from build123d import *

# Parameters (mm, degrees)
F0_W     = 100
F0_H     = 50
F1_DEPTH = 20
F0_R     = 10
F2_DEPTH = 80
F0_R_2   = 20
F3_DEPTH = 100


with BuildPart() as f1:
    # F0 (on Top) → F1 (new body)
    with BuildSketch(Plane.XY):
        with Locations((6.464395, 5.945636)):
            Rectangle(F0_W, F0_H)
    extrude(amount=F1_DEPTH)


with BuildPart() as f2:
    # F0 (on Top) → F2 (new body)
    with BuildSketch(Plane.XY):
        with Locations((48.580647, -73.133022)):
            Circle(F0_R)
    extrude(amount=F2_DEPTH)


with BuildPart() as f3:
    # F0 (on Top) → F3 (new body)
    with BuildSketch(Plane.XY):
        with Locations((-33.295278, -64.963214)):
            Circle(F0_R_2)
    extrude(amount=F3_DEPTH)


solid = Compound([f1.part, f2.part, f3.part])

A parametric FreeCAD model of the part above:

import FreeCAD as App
import Part
import Sketcher


def add_polygon(sketch, points):
    """Adds a closed chain of lines whose ends are joined by coincident constraints."""
    first, n = sketch.GeometryCount, len(points)
    for a, b in zip(points, points[1:] + points[:1]):
        sketch.addGeometry(Part.LineSegment(App.Vector(*a, 0), App.Vector(*b, 0)), False)
    for i in range(n):
        sketch.addConstraint(Sketcher.Constraint("Coincident", first + i, 2, first + (i + 1) % n, 1))

doc = App.newDocument("Part")
body = doc.addObject("PartDesign::Body", "Body")

sketch1 = body.newObject("Sketcher::SketchObject", "Sketch")
sketch1.AttachmentSupport = (doc.getObject("XY_Plane"), [""])
sketch1.MapMode = "FlatFace"
add_polygon(sketch1, [(-44, 31), (-44, -19), (56, -19), (56, 31)])
sketch1.addConstraint([
    Sketcher.Constraint("Vertical", 0),
    Sketcher.Constraint("Horizontal", 1),
    Sketcher.Constraint("Vertical", 2),
    Sketcher.Constraint("Horizontal", 3),
    Sketcher.Constraint("DistanceX", 1, 1, 1, 2, 100.0),
    Sketcher.Constraint("DistanceY", 0, 2, 0, 1, 50.0),
    Sketcher.Constraint("DistanceX", 0, 2, -1, 1, 43.535605),
    Sketcher.Constraint("DistanceY", 0, 2, -1, 1, 19.054364),
])
pad1 = body.newObject("PartDesign::Pad", "Pad")
pad1.Profile = sketch1
pad1.Length = 20
body2 = doc.addObject("PartDesign::Body", "Body001")

sketch2 = body2.newObject("Sketcher::SketchObject", "Sketch001")
sketch2.AttachmentSupport = (doc.getObject("XY_Plane001"), [""])
sketch2.MapMode = "FlatFace"
sketch2.addGeometry(Part.Circle(App.Vector(49, -73, 0), App.Vector(0, 0, 1), 10), False)
sketch2.addConstraint([
    Sketcher.Constraint("Diameter", 0, 20.0),
    Sketcher.Constraint("DistanceY", 0, 3, -1, 1, 73.133022),
    Sketcher.Constraint("DistanceX", -1, 1, 0, 3, 48.580647),
])
pad2 = body2.newObject("PartDesign::Pad", "Pad001")
pad2.Profile = sketch2
pad2.Length = 80
body3 = doc.addObject("PartDesign::Body", "Body002")

sketch3 = body3.newObject("Sketcher::SketchObject", "Sketch002")
sketch3.AttachmentSupport = (doc.getObject("XY_Plane002"), [""])
sketch3.MapMode = "FlatFace"
sketch3.addGeometry(Part.Circle(App.Vector(-33, -65, 0), App.Vector(0, 0, 1), 20), False)
sketch3.addConstraint([
    Sketcher.Constraint("Diameter", 0, 40.0),
    Sketcher.Constraint("DistanceX", 0, 3, -1, 1, 33.295278),
    Sketcher.Constraint("DistanceY", 0, 3, -1, 1, 64.963214),
])
pad3 = body3.newObject("PartDesign::Pad", "Pad002")
pad3.Profile = sketch3
pad3.Length = 100

doc.recompute()
